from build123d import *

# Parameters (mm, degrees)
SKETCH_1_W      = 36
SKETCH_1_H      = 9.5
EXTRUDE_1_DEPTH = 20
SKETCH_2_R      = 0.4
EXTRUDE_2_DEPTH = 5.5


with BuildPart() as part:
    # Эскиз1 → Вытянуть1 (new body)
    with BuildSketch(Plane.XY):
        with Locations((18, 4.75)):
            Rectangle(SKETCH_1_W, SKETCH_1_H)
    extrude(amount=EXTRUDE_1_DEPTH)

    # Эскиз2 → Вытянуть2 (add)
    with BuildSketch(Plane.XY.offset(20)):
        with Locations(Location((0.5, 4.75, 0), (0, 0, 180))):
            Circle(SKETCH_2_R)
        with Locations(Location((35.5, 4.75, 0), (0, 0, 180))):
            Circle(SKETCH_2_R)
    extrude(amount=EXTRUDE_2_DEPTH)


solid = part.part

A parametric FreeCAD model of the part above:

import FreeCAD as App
import Part
import Sketcher

V = App.Vector
Q = App.Units.Quantity


def add_polygon(sketch, points):
    """Adds a closed chain of lines whose ends are joined by coincident constraints."""
    first, n = sketch.GeometryCount, len(points)
    for a, b in zip(points, points[1:] + points[:1]):
        sketch.addGeometry(Part.LineSegment(App.Vector(*a, 0), App.Vector(*b, 0)), False)
    for i in range(n):
        sketch.addConstraint(Sketcher.Constraint("Coincident", first + i, 2, first + (i + 1) % n, 1))

doc = App.newDocument("Part")
body = doc.addObject("PartDesign::Body", "Body")

# Sketch on XY plane
sketch1 = body.newObject("Sketcher::SketchObject", "Sketch")
sketch1.AttachmentSupport = (doc.getObject("XY_Plane"), [""])
sketch1.MapMode = "FlatFace"
add_polygon(sketch1, [(0, 9.5), (0, 0), (36, 0), (36, 9.5)])  # lines 0-3
sketch1.addConstraint([
    Sketcher.Constraint("Vertical", 0),
    Sketcher.Constraint("Horizontal", 1),
    Sketcher.Constraint("Vertical", 2),
    Sketcher.Constraint("Horizontal", 3),
    Sketcher.Constraint("Coincident", 0, 2, -1, 1),
    Sketcher.Constraint("DistanceX", 1, 1, 1, 2, Q("36 mm")),
    Sketcher.Constraint("DistanceY", 0, 2, 0, 1, Q("9.5 mm")),
])
pad1 = body.newObject("PartDesign::Pad", "Pad")
pad1.Profile = sketch1
pad1.Length = 20

# Sketch on XY plane
sketch2 = body.newObject("Sketcher::SketchObject", "Sketch001")
sketch2.AttachmentSupport = (doc.getObject("XY_Plane"), [""])
sketch2.MapMode = "FlatFace"
sketch2.AttachmentOffset = App.Placement(V(0, 0, 20), App.Rotation())
sketch2.addGeometry([
    Part.Circle(V(0.5, 4.75, 0), V(0, 0, 1), 0.4),
    Part.Circle(V(35.5, 4.75, 0), V(0, 0, 1), 0.4),
], False)
sketch2.addConstraint([
    Sketcher.Constraint("Equal", 0, 1),
    Sketcher.Constraint("Horizontal", 0, 3, 1, 3),
    Sketcher.Constraint("Diameter", 0, Q("0.8 mm")),
    Sketcher.Constraint("DistanceX", 0, 3, 1, 3, Q("35 mm")),
    Sketcher.Constraint("DistanceX", -1, 1, 0, 3, Q("0.5 mm")),
    Sketcher.Constraint("DistanceY", -1, 1, 0, 3, Q("4.75 mm")),
])
pad2 = body.newObject("PartDesign::Pad", "Pad001")
pad2.Profile = sketch2
pad2.Length = 5.5

doc.recompute()
